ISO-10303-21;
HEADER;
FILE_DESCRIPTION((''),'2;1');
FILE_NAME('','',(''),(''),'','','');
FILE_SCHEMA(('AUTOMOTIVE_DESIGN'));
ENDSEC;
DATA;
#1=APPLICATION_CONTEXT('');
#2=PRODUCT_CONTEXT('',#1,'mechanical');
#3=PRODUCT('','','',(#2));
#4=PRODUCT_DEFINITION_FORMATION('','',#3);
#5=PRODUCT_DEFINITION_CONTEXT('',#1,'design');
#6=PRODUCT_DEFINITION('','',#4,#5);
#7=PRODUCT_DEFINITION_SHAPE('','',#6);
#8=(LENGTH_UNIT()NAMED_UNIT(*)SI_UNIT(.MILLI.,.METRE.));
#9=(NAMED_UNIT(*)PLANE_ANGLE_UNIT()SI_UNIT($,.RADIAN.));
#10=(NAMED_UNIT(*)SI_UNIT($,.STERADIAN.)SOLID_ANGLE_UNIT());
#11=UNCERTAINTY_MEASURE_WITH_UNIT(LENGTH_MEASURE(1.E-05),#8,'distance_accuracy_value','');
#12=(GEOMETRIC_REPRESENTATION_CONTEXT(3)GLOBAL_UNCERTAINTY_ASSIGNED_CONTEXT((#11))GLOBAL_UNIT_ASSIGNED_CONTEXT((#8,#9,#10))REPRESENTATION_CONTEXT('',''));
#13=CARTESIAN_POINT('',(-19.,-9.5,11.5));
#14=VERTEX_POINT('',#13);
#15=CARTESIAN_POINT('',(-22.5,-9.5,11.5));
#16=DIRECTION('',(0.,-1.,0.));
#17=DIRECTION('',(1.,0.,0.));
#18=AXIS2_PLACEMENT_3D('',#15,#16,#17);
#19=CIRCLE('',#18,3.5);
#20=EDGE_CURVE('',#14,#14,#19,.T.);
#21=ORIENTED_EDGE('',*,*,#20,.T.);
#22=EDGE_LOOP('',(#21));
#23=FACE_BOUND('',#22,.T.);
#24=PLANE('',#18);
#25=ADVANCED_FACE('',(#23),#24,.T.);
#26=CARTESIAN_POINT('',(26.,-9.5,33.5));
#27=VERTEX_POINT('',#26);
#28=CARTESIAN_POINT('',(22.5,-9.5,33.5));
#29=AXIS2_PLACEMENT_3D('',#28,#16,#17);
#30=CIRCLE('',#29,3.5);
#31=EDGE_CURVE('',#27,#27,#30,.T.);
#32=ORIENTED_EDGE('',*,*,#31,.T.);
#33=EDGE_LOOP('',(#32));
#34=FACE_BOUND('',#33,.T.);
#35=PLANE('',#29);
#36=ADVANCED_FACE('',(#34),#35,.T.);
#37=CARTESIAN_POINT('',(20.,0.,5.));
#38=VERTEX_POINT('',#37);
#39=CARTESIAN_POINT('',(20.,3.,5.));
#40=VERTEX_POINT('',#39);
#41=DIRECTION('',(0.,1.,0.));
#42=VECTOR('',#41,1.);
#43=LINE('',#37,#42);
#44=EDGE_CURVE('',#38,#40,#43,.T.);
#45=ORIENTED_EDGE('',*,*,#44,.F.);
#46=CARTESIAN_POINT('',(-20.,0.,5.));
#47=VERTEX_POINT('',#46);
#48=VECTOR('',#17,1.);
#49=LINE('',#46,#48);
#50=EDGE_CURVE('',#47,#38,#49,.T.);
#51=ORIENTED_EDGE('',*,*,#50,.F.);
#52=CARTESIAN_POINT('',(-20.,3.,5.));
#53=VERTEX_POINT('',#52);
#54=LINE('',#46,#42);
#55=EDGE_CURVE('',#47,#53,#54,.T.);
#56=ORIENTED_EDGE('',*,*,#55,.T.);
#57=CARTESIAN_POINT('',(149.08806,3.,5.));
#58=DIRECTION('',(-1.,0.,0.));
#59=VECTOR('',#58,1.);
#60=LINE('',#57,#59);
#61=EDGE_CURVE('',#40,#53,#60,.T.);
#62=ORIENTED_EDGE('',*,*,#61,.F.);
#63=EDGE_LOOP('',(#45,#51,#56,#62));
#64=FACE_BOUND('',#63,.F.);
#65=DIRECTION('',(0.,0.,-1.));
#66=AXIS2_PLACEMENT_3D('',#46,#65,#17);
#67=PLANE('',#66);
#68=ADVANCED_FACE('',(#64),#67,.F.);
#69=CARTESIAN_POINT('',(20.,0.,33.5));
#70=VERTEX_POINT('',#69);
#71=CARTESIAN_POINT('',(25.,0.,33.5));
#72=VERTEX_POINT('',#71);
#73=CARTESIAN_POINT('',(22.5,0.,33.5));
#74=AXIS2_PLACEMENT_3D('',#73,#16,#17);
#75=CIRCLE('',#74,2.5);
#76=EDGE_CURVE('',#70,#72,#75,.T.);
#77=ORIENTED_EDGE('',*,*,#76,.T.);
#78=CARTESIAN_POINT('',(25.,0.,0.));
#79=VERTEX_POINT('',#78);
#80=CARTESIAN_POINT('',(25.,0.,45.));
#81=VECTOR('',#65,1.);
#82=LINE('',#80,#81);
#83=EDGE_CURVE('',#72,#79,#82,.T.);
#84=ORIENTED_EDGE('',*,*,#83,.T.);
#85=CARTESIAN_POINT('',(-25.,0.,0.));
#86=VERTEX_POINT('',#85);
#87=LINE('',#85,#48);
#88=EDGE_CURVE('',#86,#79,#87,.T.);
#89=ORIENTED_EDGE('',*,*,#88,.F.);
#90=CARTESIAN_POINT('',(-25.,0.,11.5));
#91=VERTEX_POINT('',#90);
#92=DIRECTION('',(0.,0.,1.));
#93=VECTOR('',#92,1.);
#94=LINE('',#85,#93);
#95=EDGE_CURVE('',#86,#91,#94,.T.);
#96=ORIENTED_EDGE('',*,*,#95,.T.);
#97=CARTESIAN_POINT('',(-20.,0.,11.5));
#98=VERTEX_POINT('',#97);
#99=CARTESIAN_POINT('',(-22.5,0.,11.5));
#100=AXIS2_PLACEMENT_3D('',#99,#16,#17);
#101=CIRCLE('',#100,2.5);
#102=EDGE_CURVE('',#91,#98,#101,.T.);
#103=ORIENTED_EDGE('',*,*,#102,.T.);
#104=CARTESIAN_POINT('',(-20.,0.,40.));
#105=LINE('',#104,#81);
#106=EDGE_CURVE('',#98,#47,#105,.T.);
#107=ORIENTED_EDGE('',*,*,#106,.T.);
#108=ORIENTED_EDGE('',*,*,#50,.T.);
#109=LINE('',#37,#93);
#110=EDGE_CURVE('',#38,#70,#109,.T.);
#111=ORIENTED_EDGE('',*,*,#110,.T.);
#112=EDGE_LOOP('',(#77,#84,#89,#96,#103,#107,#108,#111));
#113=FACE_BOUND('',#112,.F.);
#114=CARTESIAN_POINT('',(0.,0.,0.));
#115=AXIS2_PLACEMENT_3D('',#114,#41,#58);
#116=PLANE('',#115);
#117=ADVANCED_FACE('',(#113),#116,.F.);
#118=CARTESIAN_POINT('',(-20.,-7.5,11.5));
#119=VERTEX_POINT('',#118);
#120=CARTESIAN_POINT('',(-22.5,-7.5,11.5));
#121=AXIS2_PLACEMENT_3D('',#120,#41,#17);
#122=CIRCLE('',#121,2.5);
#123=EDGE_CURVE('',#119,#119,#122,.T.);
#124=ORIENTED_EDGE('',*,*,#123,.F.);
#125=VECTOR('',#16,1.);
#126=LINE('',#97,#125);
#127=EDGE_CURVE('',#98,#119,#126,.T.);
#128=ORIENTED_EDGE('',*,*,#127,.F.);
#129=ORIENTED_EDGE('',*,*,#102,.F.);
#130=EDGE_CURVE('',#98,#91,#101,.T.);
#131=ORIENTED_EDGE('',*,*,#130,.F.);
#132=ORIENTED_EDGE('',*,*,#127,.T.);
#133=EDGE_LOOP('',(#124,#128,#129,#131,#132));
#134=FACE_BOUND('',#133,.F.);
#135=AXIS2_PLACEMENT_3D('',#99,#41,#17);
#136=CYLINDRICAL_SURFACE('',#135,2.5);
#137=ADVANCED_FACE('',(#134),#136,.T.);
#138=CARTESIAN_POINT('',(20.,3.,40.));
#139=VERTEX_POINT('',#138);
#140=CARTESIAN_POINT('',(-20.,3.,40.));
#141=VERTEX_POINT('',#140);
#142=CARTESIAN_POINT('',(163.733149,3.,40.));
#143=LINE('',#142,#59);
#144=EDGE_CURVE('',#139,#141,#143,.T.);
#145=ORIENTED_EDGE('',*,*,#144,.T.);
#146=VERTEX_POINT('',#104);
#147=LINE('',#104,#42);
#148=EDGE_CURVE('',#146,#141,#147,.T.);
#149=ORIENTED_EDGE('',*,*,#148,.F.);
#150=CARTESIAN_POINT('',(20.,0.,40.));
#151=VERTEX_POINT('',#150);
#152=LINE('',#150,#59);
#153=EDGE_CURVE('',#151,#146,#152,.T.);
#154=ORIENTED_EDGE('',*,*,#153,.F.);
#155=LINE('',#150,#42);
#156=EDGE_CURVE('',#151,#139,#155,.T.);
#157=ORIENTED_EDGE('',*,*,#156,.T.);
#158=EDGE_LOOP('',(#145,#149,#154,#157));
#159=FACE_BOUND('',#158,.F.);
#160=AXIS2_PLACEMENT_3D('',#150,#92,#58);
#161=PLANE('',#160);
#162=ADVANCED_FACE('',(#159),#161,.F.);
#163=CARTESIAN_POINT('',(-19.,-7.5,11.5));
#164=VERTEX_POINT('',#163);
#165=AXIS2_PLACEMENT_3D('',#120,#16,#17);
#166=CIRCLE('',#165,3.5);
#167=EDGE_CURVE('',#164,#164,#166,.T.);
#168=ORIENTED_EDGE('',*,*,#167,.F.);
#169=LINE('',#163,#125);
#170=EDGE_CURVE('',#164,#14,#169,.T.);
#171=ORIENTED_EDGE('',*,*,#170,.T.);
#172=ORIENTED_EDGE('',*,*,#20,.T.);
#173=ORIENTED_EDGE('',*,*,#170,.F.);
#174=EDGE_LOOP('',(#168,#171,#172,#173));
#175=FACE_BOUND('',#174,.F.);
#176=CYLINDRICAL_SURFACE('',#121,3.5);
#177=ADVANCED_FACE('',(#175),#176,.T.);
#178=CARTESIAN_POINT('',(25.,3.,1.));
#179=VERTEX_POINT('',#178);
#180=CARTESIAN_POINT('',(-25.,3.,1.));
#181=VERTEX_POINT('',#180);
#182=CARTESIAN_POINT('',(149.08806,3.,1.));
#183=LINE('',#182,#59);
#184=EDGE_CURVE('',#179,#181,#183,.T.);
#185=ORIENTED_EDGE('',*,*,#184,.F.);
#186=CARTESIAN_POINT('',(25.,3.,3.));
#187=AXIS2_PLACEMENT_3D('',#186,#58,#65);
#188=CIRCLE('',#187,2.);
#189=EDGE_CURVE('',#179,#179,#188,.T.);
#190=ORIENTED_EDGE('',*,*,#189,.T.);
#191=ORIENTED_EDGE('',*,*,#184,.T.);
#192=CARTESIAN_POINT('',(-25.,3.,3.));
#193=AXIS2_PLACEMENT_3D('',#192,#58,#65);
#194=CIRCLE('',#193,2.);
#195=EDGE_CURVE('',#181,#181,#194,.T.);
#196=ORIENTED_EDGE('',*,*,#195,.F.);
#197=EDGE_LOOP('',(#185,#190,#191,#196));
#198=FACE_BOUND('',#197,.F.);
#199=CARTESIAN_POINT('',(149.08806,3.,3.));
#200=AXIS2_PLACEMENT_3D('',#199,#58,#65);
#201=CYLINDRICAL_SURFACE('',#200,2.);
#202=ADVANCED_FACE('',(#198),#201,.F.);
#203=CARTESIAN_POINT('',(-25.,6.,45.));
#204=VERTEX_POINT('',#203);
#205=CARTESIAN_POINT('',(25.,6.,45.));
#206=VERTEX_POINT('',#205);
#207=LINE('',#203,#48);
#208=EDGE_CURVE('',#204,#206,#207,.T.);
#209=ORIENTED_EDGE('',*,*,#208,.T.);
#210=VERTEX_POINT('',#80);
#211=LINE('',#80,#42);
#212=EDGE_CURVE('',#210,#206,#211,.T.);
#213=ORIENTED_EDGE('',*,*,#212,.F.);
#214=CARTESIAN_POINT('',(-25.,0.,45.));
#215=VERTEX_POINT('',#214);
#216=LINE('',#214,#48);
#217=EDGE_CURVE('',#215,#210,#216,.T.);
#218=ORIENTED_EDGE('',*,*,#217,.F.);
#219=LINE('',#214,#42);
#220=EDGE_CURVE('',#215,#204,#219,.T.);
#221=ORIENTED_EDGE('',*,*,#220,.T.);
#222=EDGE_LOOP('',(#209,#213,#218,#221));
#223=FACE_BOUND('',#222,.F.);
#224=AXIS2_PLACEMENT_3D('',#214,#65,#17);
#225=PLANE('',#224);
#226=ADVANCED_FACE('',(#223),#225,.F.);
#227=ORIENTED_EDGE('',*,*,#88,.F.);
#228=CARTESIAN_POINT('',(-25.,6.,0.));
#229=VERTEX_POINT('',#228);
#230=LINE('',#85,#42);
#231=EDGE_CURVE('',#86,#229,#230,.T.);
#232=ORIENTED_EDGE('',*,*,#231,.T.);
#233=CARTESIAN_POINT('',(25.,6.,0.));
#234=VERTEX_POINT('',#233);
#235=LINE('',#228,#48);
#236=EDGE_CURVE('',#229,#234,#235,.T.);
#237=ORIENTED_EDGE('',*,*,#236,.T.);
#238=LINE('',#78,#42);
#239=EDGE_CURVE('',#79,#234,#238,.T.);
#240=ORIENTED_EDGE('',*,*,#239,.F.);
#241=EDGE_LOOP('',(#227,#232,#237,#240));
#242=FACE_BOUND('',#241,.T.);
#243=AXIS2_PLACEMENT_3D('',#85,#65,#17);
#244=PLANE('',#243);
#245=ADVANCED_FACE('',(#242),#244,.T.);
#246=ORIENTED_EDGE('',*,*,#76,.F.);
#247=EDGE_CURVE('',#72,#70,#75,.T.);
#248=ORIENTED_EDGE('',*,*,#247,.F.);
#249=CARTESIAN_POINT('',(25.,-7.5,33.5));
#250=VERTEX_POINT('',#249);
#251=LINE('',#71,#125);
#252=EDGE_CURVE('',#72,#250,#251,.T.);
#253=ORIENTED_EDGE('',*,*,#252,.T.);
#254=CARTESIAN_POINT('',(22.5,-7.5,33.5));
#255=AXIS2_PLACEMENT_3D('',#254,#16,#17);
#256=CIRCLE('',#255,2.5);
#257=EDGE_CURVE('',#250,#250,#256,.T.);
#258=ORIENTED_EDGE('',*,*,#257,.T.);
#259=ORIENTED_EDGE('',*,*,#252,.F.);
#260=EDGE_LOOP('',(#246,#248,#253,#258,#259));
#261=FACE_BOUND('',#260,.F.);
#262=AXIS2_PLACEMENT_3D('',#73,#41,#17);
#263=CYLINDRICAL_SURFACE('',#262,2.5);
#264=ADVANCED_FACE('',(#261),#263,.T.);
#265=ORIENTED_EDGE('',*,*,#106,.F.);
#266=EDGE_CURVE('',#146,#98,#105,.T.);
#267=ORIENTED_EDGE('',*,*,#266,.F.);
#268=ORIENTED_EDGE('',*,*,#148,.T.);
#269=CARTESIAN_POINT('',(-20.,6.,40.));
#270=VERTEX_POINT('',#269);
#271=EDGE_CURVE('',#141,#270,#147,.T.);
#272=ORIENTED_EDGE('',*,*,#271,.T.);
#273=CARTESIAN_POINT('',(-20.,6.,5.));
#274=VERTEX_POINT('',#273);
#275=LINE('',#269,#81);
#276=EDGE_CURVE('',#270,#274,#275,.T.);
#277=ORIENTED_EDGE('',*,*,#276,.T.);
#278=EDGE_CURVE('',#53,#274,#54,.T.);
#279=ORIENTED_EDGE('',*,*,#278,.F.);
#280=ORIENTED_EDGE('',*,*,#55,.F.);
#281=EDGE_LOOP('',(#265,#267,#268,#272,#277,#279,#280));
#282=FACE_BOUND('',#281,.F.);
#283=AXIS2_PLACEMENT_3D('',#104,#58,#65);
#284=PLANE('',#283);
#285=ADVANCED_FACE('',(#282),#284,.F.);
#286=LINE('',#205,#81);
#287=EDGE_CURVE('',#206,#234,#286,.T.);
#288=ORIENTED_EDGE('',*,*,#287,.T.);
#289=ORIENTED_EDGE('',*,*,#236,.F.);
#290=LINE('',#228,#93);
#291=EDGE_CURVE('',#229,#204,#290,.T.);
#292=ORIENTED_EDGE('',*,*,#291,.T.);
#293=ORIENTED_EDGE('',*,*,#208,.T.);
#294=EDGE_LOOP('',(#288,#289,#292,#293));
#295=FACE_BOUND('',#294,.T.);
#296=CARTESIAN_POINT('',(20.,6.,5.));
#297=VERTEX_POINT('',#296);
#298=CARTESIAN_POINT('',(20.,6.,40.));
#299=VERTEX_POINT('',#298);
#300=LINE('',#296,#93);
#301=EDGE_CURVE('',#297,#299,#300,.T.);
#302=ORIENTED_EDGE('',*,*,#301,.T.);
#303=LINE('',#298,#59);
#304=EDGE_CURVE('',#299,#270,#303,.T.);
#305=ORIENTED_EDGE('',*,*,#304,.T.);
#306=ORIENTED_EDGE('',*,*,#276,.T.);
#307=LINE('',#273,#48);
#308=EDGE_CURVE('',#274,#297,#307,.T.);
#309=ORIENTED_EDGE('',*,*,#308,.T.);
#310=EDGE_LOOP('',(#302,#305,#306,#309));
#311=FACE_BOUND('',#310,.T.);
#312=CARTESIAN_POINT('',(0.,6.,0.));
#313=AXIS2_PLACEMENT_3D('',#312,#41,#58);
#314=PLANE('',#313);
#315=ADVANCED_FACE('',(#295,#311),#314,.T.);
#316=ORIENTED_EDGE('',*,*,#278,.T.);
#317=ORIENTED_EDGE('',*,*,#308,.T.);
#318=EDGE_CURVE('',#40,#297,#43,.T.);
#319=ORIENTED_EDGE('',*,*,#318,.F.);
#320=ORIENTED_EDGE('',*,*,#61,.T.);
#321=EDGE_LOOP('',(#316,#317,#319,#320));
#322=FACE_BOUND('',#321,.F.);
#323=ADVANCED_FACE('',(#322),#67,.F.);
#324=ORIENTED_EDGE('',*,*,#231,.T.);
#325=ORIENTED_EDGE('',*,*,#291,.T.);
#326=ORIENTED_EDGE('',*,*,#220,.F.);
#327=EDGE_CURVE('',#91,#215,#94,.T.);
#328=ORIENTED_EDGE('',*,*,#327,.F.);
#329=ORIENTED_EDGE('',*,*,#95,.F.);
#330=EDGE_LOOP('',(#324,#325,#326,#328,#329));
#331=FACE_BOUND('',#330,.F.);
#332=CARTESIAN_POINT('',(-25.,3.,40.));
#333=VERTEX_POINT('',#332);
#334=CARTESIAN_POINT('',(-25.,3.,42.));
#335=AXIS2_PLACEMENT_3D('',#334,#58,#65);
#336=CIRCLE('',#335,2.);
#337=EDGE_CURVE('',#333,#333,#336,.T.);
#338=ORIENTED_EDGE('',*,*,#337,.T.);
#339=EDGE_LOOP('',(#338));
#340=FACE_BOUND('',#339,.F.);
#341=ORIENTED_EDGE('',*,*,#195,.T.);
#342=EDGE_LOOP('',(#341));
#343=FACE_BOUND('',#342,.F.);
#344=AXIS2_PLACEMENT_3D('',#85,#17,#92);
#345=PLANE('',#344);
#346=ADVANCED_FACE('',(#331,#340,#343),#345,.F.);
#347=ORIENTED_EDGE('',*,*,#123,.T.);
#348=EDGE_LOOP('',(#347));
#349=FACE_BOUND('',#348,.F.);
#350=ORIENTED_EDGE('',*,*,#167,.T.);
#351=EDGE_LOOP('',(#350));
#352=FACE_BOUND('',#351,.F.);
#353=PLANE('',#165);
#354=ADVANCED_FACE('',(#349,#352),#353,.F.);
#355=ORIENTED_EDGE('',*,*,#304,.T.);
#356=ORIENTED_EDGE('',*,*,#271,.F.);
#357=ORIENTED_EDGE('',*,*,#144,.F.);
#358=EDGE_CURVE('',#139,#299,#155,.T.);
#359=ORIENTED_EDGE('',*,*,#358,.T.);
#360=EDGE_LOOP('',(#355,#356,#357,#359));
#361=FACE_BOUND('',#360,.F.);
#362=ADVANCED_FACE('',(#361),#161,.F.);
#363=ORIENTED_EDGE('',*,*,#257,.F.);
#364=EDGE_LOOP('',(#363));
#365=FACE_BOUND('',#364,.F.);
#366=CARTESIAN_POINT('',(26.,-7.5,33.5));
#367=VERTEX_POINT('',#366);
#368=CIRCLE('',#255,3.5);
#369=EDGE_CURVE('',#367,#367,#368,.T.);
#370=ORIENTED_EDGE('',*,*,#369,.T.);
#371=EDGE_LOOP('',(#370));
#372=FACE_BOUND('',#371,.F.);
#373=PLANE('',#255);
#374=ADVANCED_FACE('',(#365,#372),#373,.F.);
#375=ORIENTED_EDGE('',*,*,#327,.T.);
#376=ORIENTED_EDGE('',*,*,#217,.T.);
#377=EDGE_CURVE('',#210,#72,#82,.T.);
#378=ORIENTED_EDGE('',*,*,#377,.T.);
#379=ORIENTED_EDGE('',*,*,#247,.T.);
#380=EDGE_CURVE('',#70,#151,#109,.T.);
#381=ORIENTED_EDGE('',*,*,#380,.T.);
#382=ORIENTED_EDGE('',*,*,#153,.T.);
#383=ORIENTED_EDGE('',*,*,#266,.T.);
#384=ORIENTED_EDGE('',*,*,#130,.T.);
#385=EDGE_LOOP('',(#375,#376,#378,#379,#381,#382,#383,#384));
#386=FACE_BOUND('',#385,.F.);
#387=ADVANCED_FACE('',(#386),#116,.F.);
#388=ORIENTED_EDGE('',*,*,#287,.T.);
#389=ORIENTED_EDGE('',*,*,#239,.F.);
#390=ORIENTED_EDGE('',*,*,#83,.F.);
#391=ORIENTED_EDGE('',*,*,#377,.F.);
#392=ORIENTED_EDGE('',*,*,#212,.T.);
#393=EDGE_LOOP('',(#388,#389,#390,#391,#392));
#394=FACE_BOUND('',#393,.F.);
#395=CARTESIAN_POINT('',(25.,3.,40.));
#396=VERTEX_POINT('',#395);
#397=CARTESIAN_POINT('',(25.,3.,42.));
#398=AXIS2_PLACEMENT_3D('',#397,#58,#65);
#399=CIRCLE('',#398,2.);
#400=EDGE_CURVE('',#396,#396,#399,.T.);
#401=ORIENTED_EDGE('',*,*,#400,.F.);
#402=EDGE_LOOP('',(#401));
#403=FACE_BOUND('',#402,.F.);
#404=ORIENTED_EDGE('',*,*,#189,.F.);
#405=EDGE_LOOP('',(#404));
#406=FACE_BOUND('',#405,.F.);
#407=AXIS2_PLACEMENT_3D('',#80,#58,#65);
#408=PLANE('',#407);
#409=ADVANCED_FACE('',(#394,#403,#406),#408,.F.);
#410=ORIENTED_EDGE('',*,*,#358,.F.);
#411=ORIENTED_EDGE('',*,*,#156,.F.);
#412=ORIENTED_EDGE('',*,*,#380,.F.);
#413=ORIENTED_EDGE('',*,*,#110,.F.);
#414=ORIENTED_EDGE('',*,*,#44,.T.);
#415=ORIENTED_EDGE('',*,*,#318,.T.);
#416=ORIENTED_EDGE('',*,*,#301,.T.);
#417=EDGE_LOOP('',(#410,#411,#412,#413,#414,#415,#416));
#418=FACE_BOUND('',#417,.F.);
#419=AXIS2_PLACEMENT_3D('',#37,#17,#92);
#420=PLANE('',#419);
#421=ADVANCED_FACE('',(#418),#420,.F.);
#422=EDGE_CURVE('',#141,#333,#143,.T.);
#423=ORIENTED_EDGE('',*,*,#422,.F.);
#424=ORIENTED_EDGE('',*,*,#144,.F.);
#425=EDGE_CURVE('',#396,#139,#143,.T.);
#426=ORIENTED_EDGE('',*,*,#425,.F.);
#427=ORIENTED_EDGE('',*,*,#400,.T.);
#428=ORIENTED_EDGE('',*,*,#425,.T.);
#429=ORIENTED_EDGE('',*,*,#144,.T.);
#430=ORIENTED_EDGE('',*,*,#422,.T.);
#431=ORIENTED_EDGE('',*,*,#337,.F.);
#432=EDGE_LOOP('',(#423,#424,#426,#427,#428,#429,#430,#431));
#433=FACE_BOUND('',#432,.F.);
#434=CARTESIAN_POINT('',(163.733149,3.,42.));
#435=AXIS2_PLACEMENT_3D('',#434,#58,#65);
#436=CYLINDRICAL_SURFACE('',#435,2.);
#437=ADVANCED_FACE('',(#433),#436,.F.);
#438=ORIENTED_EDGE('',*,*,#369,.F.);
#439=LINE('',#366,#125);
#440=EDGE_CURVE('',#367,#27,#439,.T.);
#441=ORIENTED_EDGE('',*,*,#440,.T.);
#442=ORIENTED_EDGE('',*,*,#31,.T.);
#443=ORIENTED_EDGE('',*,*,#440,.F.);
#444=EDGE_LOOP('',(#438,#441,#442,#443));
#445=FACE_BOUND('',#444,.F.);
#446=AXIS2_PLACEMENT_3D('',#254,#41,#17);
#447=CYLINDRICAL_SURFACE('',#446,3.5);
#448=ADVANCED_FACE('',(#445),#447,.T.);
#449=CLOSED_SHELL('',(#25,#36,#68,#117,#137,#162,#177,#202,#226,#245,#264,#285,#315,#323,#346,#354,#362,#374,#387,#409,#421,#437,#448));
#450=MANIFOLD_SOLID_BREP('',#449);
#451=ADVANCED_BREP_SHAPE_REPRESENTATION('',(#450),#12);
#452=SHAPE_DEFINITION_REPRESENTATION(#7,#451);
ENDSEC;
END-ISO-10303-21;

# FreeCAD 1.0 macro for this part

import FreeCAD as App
import Part
import Sketcher
Q = App.Units.Quantity

doc = App.newDocument("Part")
body = doc.addObject("PartDesign::Body", "Body")

# Sketch on XZ plane
sketch1 = doc.addObject("Sketcher::SketchObject", "Sketch")
body.addObject(sketch1)
sketch1.AttachmentSupport = (doc.XZ_Plane, [""])
sketch1.MapMode = "FlatFace"
sketch1.addGeometry([
    Part.LineSegment(App.Vector(25, 0, 0), App.Vector(-25, 0, 0)),  # 0
    Part.LineSegment(App.Vector(-25, 0, 0), App.Vector(-25, 45, 0)),  # 1
    Part.LineSegment(App.Vector(-25, 45, 0), App.Vector(25, 45, 0)),  # 2
    Part.LineSegment(App.Vector(25, 45, 0), App.Vector(25, 0, 0)),  # 3
    Part.LineSegment(App.Vector(-20, 40, 0), App.Vector(-20, 5, 0)),  # 4
    Part.LineSegment(App.Vector(-20, 5, 0), App.Vector(20, 5, 0)),  # 5
    Part.LineSegment(App.Vector(20, 5, 0), App.Vector(20, 40, 0)),  # 6
    Part.LineSegment(App.Vector(20, 40, 0), App.Vector(-20, 40, 0)),  # 7
], False)
sketch1.addConstraint([
    Sketcher.Constraint("Coincident", 0, 2, 1, 1),
    Sketcher.Constraint("Coincident", 1, 2, 2, 1),
    Sketcher.Constraint("Coincident", 2, 2, 3, 1),
    Sketcher.Constraint("Coincident", 3, 2, 0, 1),
    Sketcher.Constraint("Coincident", 4, 2, 5, 1),
    Sketcher.Constraint("Coincident", 5, 2, 6, 1),
    Sketcher.Constraint("Coincident", 6, 2, 7, 1),
    Sketcher.Constraint("Coincident", 7, 2, 4, 1),
    Sketcher.Constraint("Horizontal", 0),
    Sketcher.Constraint("Vertical", 1),
    Sketcher.Constraint("Horizontal", 2),
    Sketcher.Constraint("Vertical", 3),
    Sketcher.Constraint("Vertical", 4),
    Sketcher.Constraint("Horizontal", 5),
    Sketcher.Constraint("Vertical", 6),
    Sketcher.Constraint("Horizontal", 7),
    Sketcher.Constraint("Symmetric", 0, 2, 3, 2, -1, 1),
    Sketcher.Constraint("DistanceX", 0, 2, 0, 1, Q("50 mm")),
    Sketcher.Constraint("DistanceX", 5, 1, 5, 2, Q("40 mm")),
    Sketcher.Constraint("DistanceY", 1, 1, 1, 2, Q("45 mm")),
    Sketcher.Constraint("DistanceY", 4, 2, 4, 1, Q("35 mm")),
    Sketcher.Constraint("DistanceY", -1, 1, 6, 2, Q("40 mm")),
    Sketcher.Constraint("DistanceX", 4, 2, 3, 2, Q("45 mm")),
])
pad1 = doc.addObject("PartDesign::Pad", "Pad")
body.addObject(pad1)
pad1.Profile = sketch1
pad1.Length = 6
pad1.Reversed = True

# Sketch on XZ plane
sketch2 = doc.addObject("Sketcher::SketchObject", "Sketch001")
body.addObject(sketch2)
sketch2.AttachmentSupport = (doc.XZ_Plane, [""])
sketch2.MapMode = "FlatFace"
sketch2.addGeometry([
    Part.Circle(App.Vector(-22.5, 11.5, 0), App.Vector(0, 0, 1), 2.5),
    Part.Circle(App.Vector(22.5, 33.5, 0), App.Vector(0, 0, 1), 2.5),
], False)
sketch2.addConstraint([
    Sketcher.Constraint("Equal", 0, 1),
    Sketcher.Constraint("Diameter", 0, Q("5 mm")),
    Sketcher.Constraint("DistanceX", 0, 3, 1, 3, Q("45 mm")),
    Sketcher.Constraint("DistanceY", 0, 3, 1, 3, Q("22 mm")),
    Sketcher.Constraint("DistanceX", 0, 3, -1, 1, Q("22.5 mm")),
    Sketcher.Constraint("DistanceY", -1, 1, 0, 3, Q("11.5 mm")),
])
pad2 = doc.addObject("PartDesign::Pad", "Pad001")
body.addObject(pad2)
pad2.Profile = sketch2
pad2.Length = 7.5

# Sketch on XZ plane
sketch3 = doc.addObject("Sketcher::SketchObject", "Sketch002")
body.addObject(sketch3)
sketch3.AttachmentSupport = (doc.XZ_Plane, [""])
sketch3.MapMode = "FlatFace"
sketch3.AttachmentOffset = App.Placement(App.Vector(0, 0, 7.5), App.Rotation())
sketch3.addGeometry(Part.Circle(App.Vector(-22.5, 11.5, 0), App.Vector(0, 0, 1), 3.5), False)
sketch3.addConstraint([
    Sketcher.Constraint("Diameter", 0, Q("7 mm")),
    Sketcher.Constraint("DistanceX", 0, 3, -1, 1, Q("22.5 mm")),
    Sketcher.Constraint("DistanceY", -1, 1, 0, 3, Q("11.5 mm")),
])
pad3 = doc.addObject("PartDesign::Pad", "Pad002")
body.addObject(pad3)
pad3.Profile = sketch3
pad3.Length = 2

# Sketch on XZ plane
sketch4 = doc.addObject("Sketcher::SketchObject", "Sketch003")
body.addObject(sketch4)
sketch4.AttachmentSupport = (doc.XZ_Plane, [""])
sketch4.MapMode = "FlatFace"
sketch4.AttachmentOffset = App.Placement(App.Vector(0, 0, 7.5), App.Rotation())
sketch4.addGeometry(Part.Circle(App.Vector(22.5, 33.5, 0), App.Vector(0, 0, 1), 3.5), False)
sketch4.addConstraint([
    Sketcher.Constraint("Diameter", 0, Q("7 mm")),
    Sketcher.Constraint("DistanceX", -1, 1, 0, 3, Q("22.5 mm")),
    Sketcher.Constraint("DistanceY", -1, 1, 0, 3, Q("33.5 mm")),
])
pad4 = doc.addObject("PartDesign::Pad", "Pad003")
body.addObject(pad4)
pad4.Profile = sketch4
pad4.Length = 2

# Sketch on YZ plane
sketch5 = doc.addObject("Sketcher::SketchObject", "Sketch004")
body.addObject(sketch5)
sketch5.AttachmentSupport = (doc.YZ_Plane, [""])
sketch5.MapMode = "FlatFace"
sketch5.AttachmentOffset = App.Placement(App.Vector(0, 0, 25), App.Rotation())
sketch5.addGeometry([
    Part.Circle(App.Vector(3, 42, 0), App.Vector(0, 0, 1), 2),
    Part.Circle(App.Vector(3, 3, 0), App.Vector(0, 0, 1), 2),
], False)
sketch5.addConstraint([
    Sketcher.Constraint("Equal", 0, 1),
    Sketcher.Constraint("Vertical", 0, 3, 1, 3),
    Sketcher.Constraint("Diameter", 0, Q("4 mm")),
    Sketcher.Constraint("DistanceX", -1, 1, 0, 3, Q("3 mm")),
    Sketcher.Constraint("DistanceY", -1, 1, 0, 3, Q("42 mm")),
    Sketcher.Constraint("DistanceY", -1, 1, 1, 3, Q("3 mm")),
])
doc.recompute()
hole = doc.addObject("PartDesign::Hole", "Hole")
body.addObject(hole)
hole.Profile = sketch5
hole.ThreadType = "None"
hole.Diameter = 4
hole.DepthType = "ThroughAll"

doc.recompute()
